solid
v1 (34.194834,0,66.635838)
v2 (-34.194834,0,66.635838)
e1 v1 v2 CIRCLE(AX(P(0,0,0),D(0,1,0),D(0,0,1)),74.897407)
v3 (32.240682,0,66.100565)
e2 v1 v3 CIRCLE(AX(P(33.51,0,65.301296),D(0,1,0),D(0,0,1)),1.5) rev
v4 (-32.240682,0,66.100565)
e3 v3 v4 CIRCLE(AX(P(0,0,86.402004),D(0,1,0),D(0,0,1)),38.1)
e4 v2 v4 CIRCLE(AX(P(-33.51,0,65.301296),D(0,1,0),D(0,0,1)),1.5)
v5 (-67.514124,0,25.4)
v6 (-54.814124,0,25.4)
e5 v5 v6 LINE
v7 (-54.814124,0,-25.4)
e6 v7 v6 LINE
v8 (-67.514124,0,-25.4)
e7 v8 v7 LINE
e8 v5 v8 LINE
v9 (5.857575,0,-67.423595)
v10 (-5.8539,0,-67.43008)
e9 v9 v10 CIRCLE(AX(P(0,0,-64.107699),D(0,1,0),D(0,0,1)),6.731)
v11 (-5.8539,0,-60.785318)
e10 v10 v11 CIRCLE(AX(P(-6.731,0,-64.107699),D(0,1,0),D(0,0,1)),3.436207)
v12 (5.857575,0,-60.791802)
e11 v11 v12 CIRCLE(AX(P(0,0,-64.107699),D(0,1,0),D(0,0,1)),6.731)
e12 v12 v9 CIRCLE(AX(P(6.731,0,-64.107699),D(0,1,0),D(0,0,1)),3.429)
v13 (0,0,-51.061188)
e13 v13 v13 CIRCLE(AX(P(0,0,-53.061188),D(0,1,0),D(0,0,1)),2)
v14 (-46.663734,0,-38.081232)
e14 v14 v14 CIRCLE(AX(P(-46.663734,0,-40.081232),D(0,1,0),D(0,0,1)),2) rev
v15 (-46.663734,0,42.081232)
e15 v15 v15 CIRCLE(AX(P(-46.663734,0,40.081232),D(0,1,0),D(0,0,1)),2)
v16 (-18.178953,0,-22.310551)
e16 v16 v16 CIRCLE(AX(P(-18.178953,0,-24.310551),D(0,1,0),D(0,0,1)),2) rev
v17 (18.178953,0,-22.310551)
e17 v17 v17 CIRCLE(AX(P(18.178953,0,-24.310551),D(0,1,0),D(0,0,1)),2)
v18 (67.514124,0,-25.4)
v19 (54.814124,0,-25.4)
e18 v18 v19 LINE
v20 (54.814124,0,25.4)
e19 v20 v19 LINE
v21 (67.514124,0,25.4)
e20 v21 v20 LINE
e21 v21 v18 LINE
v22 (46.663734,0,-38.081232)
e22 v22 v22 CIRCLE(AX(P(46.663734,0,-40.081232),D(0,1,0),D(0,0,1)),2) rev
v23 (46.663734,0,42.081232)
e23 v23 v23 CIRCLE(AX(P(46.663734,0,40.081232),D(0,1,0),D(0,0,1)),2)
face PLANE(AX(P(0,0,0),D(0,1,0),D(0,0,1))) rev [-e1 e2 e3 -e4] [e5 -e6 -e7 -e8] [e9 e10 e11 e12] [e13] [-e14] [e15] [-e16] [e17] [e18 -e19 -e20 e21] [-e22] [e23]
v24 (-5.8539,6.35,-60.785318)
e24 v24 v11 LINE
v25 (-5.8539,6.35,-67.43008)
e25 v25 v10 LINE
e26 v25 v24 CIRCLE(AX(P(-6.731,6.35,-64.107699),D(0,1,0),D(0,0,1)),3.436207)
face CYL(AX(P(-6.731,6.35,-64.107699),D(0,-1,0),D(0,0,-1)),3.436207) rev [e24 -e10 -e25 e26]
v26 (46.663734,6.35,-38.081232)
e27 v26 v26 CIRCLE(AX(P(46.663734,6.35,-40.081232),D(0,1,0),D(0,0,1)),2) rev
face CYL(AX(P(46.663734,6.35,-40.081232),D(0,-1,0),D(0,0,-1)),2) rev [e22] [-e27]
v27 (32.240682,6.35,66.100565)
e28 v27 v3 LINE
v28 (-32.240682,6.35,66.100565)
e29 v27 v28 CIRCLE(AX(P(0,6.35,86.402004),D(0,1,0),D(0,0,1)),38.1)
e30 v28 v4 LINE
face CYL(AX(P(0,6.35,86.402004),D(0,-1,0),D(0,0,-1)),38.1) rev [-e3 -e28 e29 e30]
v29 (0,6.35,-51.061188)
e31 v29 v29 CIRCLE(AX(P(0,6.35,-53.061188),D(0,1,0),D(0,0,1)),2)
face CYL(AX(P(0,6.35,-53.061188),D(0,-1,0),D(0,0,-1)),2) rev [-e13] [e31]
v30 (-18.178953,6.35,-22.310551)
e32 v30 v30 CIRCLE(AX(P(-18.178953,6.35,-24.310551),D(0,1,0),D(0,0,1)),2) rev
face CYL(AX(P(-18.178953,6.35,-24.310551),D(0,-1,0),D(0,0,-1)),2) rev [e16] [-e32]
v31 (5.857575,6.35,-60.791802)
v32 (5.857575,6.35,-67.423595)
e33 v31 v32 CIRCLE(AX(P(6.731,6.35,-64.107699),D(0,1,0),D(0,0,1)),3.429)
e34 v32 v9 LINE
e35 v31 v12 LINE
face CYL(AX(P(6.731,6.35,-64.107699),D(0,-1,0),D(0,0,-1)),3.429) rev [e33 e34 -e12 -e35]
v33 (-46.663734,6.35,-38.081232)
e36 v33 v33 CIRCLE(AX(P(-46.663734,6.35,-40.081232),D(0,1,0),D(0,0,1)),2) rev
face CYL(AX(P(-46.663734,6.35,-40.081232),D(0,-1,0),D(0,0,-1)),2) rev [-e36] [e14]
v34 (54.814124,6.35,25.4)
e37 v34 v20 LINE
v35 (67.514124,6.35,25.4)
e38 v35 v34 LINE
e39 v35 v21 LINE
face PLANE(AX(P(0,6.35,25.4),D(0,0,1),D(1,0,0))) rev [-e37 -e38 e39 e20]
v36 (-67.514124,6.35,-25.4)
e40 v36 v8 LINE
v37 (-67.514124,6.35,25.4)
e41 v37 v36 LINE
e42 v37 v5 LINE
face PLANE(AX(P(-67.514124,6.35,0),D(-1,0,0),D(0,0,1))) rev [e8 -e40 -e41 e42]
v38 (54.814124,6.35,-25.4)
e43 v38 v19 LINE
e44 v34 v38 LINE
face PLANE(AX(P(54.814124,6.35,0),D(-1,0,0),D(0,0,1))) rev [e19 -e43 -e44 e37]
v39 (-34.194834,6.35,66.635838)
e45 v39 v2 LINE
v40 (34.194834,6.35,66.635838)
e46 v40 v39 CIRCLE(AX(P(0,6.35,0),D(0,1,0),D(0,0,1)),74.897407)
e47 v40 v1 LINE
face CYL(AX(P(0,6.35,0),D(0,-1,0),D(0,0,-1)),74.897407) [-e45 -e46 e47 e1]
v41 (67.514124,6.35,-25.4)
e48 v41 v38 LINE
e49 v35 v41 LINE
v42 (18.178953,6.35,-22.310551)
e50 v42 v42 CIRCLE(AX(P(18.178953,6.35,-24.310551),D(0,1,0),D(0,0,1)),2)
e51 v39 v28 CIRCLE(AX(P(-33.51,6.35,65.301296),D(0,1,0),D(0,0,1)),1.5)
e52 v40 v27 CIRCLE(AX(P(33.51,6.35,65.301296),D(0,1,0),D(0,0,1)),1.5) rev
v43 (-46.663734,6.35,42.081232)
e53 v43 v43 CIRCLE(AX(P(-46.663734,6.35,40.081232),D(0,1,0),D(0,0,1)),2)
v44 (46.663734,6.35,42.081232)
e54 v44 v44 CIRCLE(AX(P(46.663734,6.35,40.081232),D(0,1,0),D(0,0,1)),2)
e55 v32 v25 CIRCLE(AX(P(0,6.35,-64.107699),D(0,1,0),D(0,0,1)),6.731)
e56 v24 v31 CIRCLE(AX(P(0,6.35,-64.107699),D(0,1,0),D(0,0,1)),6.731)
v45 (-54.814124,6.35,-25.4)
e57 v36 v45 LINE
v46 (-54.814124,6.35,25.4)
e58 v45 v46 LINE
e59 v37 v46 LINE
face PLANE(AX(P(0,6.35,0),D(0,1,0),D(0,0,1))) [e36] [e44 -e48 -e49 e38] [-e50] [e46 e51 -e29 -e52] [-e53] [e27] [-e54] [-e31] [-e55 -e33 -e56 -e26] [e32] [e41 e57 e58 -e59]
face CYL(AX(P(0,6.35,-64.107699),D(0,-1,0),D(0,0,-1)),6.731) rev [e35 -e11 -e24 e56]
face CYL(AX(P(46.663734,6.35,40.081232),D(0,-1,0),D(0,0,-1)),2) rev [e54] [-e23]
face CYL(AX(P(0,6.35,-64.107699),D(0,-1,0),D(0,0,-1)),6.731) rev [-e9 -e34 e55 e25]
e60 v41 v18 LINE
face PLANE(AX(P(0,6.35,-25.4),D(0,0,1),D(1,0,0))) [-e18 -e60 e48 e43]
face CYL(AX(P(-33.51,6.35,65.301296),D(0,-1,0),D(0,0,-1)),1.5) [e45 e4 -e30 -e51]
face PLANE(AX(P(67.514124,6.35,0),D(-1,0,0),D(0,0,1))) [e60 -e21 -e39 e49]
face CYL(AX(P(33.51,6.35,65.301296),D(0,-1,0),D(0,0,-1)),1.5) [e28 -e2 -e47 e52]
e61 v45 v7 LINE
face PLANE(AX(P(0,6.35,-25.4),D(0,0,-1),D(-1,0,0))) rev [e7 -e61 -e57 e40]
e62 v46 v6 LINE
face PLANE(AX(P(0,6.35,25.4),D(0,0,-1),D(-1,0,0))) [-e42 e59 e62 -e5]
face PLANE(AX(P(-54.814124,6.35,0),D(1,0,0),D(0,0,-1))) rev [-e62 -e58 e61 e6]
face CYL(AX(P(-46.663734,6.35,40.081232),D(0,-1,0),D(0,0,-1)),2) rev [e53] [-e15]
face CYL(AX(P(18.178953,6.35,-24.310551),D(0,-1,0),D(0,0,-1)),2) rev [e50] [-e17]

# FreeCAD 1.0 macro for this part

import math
import FreeCAD as App
import Part
import Sketcher

V = App.Vector
Q = App.Units.Quantity

doc = App.newDocument("Part")
body = doc.addObject("PartDesign::Body", "Body")

sketch1 = doc.addObject("Sketcher::SketchObject", "Sketch")
body.addObject(sketch1)
sketch1.AttachmentSupport = (doc.XZ_Plane, [""])
sketch1.MapMode = "FlatFace"
sketch1.addGeometry(Part.ArcOfCircle(Part.Circle(V(33.5, 65.3, 0), V(0, 0, 1), 1.5), math.radians(63), math.radians(148)), False)
sketch1.addGeometry(Part.ArcOfCircle(Part.Circle(V(0, 0, 0), V(0, 0, 1), 74.9), math.radians(117), math.radians(423)), False)
sketch1.addGeometry(Part.ArcOfCircle(Part.Circle(V(-33.5, 65.3, 0), V(0, 0, 1), 1.5), math.radians(32), math.radians(117)), False)
sketch1.addGeometry(Part.ArcOfCircle(Part.Circle(V(0, 86.4, 0), V(0, 0, 1), 38.1), math.radians(-148), math.radians(-32)), False)
sketch1.addGeometry(Part.Circle(V(46.7, 40.1, 0), V(0, 0, 1), 2), False)
sketch1.addGeometry(Part.LineSegment(V(54.8, 25.4, 0), V(54.8, -25.4, 0)), False)
sketch1.addGeometry(Part.LineSegment(V(54.8, -25.4, 0), V(67.5, -25.4, 0)), False)
sketch1.addGeometry(Part.LineSegment(V(67.5, -25.4, 0), V(67.5, 25.4, 0)), False)
sketch1.addGeometry(Part.LineSegment(V(67.5, 25.4, 0), V(54.8, 25.4, 0)), False)
sketch1.addGeometry(Part.Circle(V(-46.7, 40.1, 0), V(0, 0, 1), 2), False)
sketch1.addGeometry(Part.LineSegment(V(-67.5, 25.4, 0), V(-67.5, -25.4, 0)), False)
sketch1.addGeometry(Part.LineSegment(V(-67.5, -25.4, 0), V(-54.8, -25.4, 0)), False)
sketch1.addGeometry(Part.LineSegment(V(-54.8, -25.4, 0), V(-54.8, 25.4, 0)), False)
sketch1.addGeometry(Part.LineSegment(V(-54.8, 25.4, 0), V(-67.5, 25.4, 0)), False)
sketch1.addGeometry(Part.Circle(V(46.7, -40.1, 0), V(0, 0, 1), 2), False)
sketch1.addGeometry(Part.Circle(V(18.2, -24.3, 0), V(0, 0, 1), 2), False)
sketch1.addGeometry(Part.Circle(V(-18.2, -24.3, 0), V(0, 0, 1), 2), False)
sketch1.addGeometry(Part.Circle(V(-46.7, -40.1, 0), V(0, 0, 1), 2), False)
sketch1.addGeometry(Part.Circle(V(0, -53.1, 0), V(0, 0, 1), 2), False)
sketch1.addGeometry(Part.ArcOfCircle(Part.Circle(V(-6.7, -64.1, 0), V(0, 0, 1), 3.4), math.radians(75), math.radians(285)), False)
sketch1.addGeometry(Part.ArcOfCircle(Part.Circle(V(0, -64.1, 0), V(0, 0, 1), 6.7), math.radians(-150), math.radians(-30)), False)
sketch1.addGeometry(Part.ArcOfCircle(Part.Circle(V(6.7, -64.1, 0), V(0, 0, 1), 3.4), math.radians(-105), math.radians(105)), False)
sketch1.addGeometry(Part.ArcOfCircle(Part.Circle(V(0, -64.1, 0), V(0, 0, 1), 6.7), math.radians(30), math.radians(150)), False)
sketch1.addConstraint(Sketcher.Constraint("Tangent", 0, 1, 1, 2))
sketch1.addConstraint(Sketcher.Constraint("Tangent", 1, 1, 2, 2))
sketch1.addConstraint(Sketcher.Constraint("Tangent", 2, 1, 3, 1))
sketch1.addConstraint(Sketcher.Constraint("Tangent", 3, 2, 0, 2))
sketch1.addConstraint(Sketcher.Constraint("Coincident", 5, 2, 6, 1))
sketch1.addConstraint(Sketcher.Constraint("Coincident", 6, 2, 7, 1))
sketch1.addConstraint(Sketcher.Constraint("Coincident", 7, 2, 8, 1))
sketch1.addConstraint(Sketcher.Constraint("Coincident", 8, 2, 5, 1))
sketch1.addConstraint(Sketcher.Constraint("Coincident", 10, 2, 11, 1))
sketch1.addConstraint(Sketcher.Constraint("Coincident", 11, 2, 12, 1))
sketch1.addConstraint(Sketcher.Constraint("Coincident", 12, 2, 13, 1))
sketch1.addConstraint(Sketcher.Constraint("Coincident", 13, 2, 10, 1))
sketch1.addConstraint(Sketcher.Constraint("Coincident", 19, 2, 20, 1))
sketch1.addConstraint(Sketcher.Constraint("Coincident", 20, 2, 21, 1))
sketch1.addConstraint(Sketcher.Constraint("Coincident", 21, 2, 22, 1))
sketch1.addConstraint(Sketcher.Constraint("Coincident", 22, 2, 19, 1))
sketch1.addConstraint(Sketcher.Constraint("Vertical", 5))
sketch1.addConstraint(Sketcher.Constraint("Horizontal", 6))
sketch1.addConstraint(Sketcher.Constraint("Vertical", 7))
sketch1.addConstraint(Sketcher.Constraint("Horizontal", 8))
sketch1.addConstraint(Sketcher.Constraint("Vertical", 10))
sketch1.addConstraint(Sketcher.Constraint("Horizontal", 11))
sketch1.addConstraint(Sketcher.Constraint("Vertical", 12))
sketch1.addConstraint(Sketcher.Constraint("Horizontal", 13))
sketch1.addConstraint(Sketcher.Constraint("Coincident", 1, 3, -1, 1))
sketch1.addConstraint(Sketcher.Constraint("Coincident", 22, 3, 20, 3))
sketch1.addConstraint(Sketcher.Constraint("Equal", 0, 2))
sketch1.addConstraint(Sketcher.Constraint("Equal", 4, 9))
sketch1.addConstraint(Sketcher.Constraint("Equal", 9, 14))
sketch1.addConstraint(Sketcher.Constraint("Equal", 14, 15))
sketch1.addConstraint(Sketcher.Constraint("Equal", 15, 16))
sketch1.addConstraint(Sketcher.Constraint("Equal", 16, 17))
sketch1.addConstraint(Sketcher.Constraint("Equal", 17, 18))
sketch1.addConstraint(Sketcher.Constraint("Equal", 20, 22))
sketch1.addConstraint(Sketcher.Constraint("Symmetric", 9, 3, 14, 3, -1, 1))
sketch1.addConstraint(Sketcher.Constraint("Symmetric", 4, 3, 17, 3, -1, 1))
sketch1.addConstraint(Sketcher.Constraint("Symmetric", 7, 2, 10, 2, -1, 1))
sketch1.addConstraint(Sketcher.Constraint("Symmetric", 5, 2, 12, 2, -1, 1))
sketch1.addConstraint(Sketcher.Constraint("Symmetric", 4, 3, 9, 3, -2))
sketch1.addConstraint(Sketcher.Constraint("Symmetric", 15, 3, 16, 3, -2))
sketch1.addConstraint(Sketcher.Constraint("Symmetric", 19, 3, 21, 3, -2))
sketch1.addConstraint(Sketcher.Constraint("PointOnObject", 3, 3, -2))
sketch1.addConstraint(Sketcher.Constraint("PointOnObject", 18, 3, -2))
sketch1.addConstraint(Sketcher.Constraint("PointOnObject", 20, 3, -2))
sketch1.addConstraint(Sketcher.Constraint("Horizontal", 19, 3, 20, 3))
sketch1.addConstraint(Sketcher.Constraint("Horizontal", 6, 2, 10, 2))
sketch1.addConstraint(Sketcher.Constraint("Radius", 3, Q("1.5 in")))
sketch1.addConstraint(Sketcher.Constraint("DistanceY", 5, 2, 5, 1, Q("2 in")))
sketch1.addConstraint(Sketcher.Constraint("DistanceX", 6, 1, 6, 2, Q("0.5 in")))
sketch1.addConstraint(Sketcher.Constraint("Radius", 20, Q("0.265 in")))
sketch1.addConstraint(Sketcher.Constraint("Radius", 21, Q("0.135 in")))
sketch1.addConstraint(Sketcher.Constraint("Diameter", 4, 4.0))
sketch1.addConstraint(Sketcher.Constraint("Radius", 0, 1.5))
sketch1.addConstraint(Sketcher.Constraint("DistanceX", 19, 3, 21, 3, Q("0.53 in")))
sketch1.addConstraint(Sketcher.Constraint("Radius", 1, 74.897407))
sketch1.addConstraint(Sketcher.Constraint("Radius", 19, 3.436207))
sketch1.addConstraint(Sketcher.Constraint("DistanceX", -1, 1, 0, 3, 33.51))
sketch1.addConstraint(Sketcher.Constraint("DistanceY", 19, 3, -1, 1, 64.107699))
sketch1.addConstraint(Sketcher.Constraint("DistanceX", 0, 1, 4, 3, 12.4689))
sketch1.addConstraint(Sketcher.Constraint("DistanceY", -1, 1, 4, 3, 40.081232))
sketch1.addConstraint(Sketcher.Constraint("DistanceY", 15, 3, -1, 1, 24.310551))
sketch1.addConstraint(Sketcher.Constraint("DistanceX", 15, 3, 14, 3, 28.484781))
sketch1.addConstraint(Sketcher.Constraint("DistanceY", 19, 3, 18, 3, 11.046511))
sketch1.addConstraint(Sketcher.Constraint("DistanceX", 14, 3, 5, 2, 8.15039))
pad1 = doc.addObject("PartDesign::Pad", "Pad")
body.addObject(pad1)
pad1.Profile = sketch1
pad1.Length = Q("0.25 in")
pad1.Reversed = True

doc.recompute()
